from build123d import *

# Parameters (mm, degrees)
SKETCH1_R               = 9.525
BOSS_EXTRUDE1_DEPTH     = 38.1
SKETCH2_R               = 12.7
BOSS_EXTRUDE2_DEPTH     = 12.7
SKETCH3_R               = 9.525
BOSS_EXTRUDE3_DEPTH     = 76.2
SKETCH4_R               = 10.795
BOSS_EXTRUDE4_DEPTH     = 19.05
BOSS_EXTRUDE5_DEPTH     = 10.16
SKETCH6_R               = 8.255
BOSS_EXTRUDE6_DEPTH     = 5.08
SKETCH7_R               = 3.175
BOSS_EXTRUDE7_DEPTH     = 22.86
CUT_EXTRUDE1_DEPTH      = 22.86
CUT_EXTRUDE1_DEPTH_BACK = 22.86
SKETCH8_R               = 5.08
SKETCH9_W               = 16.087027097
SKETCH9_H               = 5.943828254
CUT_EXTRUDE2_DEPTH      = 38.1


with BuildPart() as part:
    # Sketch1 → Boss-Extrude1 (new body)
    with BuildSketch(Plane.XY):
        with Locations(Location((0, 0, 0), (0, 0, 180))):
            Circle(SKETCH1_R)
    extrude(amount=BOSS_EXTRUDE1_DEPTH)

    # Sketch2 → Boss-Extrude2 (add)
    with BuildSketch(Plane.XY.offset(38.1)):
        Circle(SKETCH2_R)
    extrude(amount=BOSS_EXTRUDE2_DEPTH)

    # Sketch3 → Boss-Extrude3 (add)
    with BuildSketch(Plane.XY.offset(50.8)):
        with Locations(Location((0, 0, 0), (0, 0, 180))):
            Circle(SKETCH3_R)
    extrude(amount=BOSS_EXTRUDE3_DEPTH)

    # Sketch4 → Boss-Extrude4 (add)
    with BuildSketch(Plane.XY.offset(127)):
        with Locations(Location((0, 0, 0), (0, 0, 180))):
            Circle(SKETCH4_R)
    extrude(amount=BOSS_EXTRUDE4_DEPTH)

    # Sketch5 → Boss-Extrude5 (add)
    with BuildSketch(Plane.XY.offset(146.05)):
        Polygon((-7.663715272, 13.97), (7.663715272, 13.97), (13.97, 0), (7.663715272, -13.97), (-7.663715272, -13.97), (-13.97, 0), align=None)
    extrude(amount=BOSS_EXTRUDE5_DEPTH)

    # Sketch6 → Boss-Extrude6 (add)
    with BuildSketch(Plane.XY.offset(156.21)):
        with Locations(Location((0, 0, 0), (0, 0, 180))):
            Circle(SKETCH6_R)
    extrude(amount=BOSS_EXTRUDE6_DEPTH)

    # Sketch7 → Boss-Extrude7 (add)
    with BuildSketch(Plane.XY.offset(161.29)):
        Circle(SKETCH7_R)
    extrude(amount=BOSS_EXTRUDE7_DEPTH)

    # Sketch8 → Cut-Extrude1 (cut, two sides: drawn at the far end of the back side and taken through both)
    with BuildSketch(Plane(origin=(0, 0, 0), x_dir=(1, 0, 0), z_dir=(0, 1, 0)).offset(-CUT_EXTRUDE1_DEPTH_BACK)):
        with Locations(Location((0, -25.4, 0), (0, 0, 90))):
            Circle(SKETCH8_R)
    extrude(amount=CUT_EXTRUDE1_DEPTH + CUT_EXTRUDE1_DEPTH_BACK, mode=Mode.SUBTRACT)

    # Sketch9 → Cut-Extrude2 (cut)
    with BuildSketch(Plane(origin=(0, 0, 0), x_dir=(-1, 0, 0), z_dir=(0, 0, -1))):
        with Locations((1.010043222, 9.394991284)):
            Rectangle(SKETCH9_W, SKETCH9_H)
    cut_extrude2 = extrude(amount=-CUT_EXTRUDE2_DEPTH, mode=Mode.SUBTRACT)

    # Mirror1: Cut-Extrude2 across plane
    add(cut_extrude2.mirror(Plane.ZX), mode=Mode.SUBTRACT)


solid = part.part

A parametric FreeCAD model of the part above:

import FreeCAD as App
import Part
import Sketcher

V = App.Vector
Q = App.Units.Quantity

doc = App.newDocument("Part")
body = doc.addObject("PartDesign::Body", "Body")

# Sketch on XY plane
sketch1 = doc.addObject("Sketcher::SketchObject", "Sketch")
body.addObject(sketch1)
sketch1.AttachmentSupport = (doc.XY_Plane, [""])
sketch1.MapMode = "FlatFace"
sketch1.addGeometry(Part.Circle(V(0, 0, 0), V(0, 0, 1), 10), False)
sketch1.addConstraint([
    Sketcher.Constraint("Coincident", 0, 3, -1, 1),
    Sketcher.Constraint("Diameter", 0, Q("0.75 in")),
])
pad1 = doc.addObject("PartDesign::Pad", "Pad")
body.addObject(pad1)
pad1.Profile = sketch1
pad1.Length = Q("1.5 in")

# Sketch on XY plane
sketch2 = doc.addObject("Sketcher::SketchObject", "Sketch001")
body.addObject(sketch2)
sketch2.AttachmentSupport = (doc.XY_Plane, [""])
sketch2.MapMode = "FlatFace"
sketch2.AttachmentOffset = App.Placement(V(0, 0, 1.5 * 25.4), App.Rotation())
sketch2.addGeometry(Part.Circle(V(0, 0, 0), V(0, 0, 1), 13), False)
sketch2.addConstraint([
    Sketcher.Constraint("Coincident", 0, 3, -1, 1),
    Sketcher.Constraint("Diameter", 0, Q("1 in")),
])
pad2 = doc.addObject("PartDesign::Pad", "Pad001")
body.addObject(pad2)
pad2.Profile = sketch2
pad2.Length = Q("0.5 in")

# Sketch on XY plane
sketch3 = doc.addObject("Sketcher::SketchObject", "Sketch002")
body.addObject(sketch3)
sketch3.AttachmentSupport = (doc.XY_Plane, [""])
sketch3.MapMode = "FlatFace"
sketch3.AttachmentOffset = App.Placement(V(0, 0, 2 * 25.4), App.Rotation())
sketch3.addGeometry(Part.Circle(V(0, 0, 0), V(0, 0, 1), 10), False)
sketch3.addConstraint([
    Sketcher.Constraint("Coincident", 0, 3, -1, 1),
    Sketcher.Constraint("Diameter", 0, Q("0.75 in")),
])
pad3 = doc.addObject("PartDesign::Pad", "Pad002")
body.addObject(pad3)
pad3.Profile = sketch3
pad3.Length = Q("3 in")

# Sketch on XY plane
sketch4 = doc.addObject("Sketcher::SketchObject", "Sketch003")
body.addObject(sketch4)
sketch4.AttachmentSupport = (doc.XY_Plane, [""])
sketch4.MapMode = "FlatFace"
sketch4.AttachmentOffset = App.Placement(V(0, 0, 5 * 25.4), App.Rotation())
sketch4.addGeometry(Part.Circle(V(0, 0, 0), V(0, 0, 1), 11), False)
sketch4.addConstraint([
    Sketcher.Constraint("Coincident", 0, 3, -1, 1),
    Sketcher.Constraint("Diameter", 0, Q("0.85 in")),
])
pad4 = doc.addObject("PartDesign::Pad", "Pad003")
body.addObject(pad4)
pad4.Profile = sketch4
pad4.Length = Q("0.75 in")

# Sketch on XY plane
sketch5 = doc.addObject("Sketcher::SketchObject", "Sketch004")
body.addObject(sketch5)
sketch5.AttachmentSupport = (doc.XY_Plane, [""])
sketch5.MapMode = "FlatFace"
sketch5.AttachmentOffset = App.Placement(V(0, 0, 5.75 * 25.4), App.Rotation())
sketch5.addGeometry([
    Part.LineSegment(V(8, 14, 0), V(-8, 14, 0)),  # 0
    Part.LineSegment(V(-8, 14, 0), V(-14, 0, 0)),  # 1
    Part.LineSegment(V(-14, 0, 0), V(-8, -14, 0)),  # 2
    Part.LineSegment(V(-8, -14, 0), V(8, -14, 0)),  # 3
    Part.LineSegment(V(8, -14, 0), V(14, 0, 0)),  # 4
    Part.LineSegment(V(14, 0, 0), V(8, 14, 0)),  # 5
], False)
sketch5.addConstraint([
    Sketcher.Constraint("Coincident", 0, 2, 1, 1),
    Sketcher.Constraint("Coincident", 1, 2, 2, 1),
    Sketcher.Constraint("Coincident", 2, 2, 3, 1),
    Sketcher.Constraint("Coincident", 3, 2, 4, 1),
    Sketcher.Constraint("Coincident", 4, 2, 5, 1),
    Sketcher.Constraint("Coincident", 5, 2, 0, 1),
    Sketcher.Constraint("Horizontal", 0),
    Sketcher.Constraint("Horizontal", 3),
    Sketcher.Constraint("Symmetric", 0, 2, 3, 2, -1, 1),
    Sketcher.Constraint("Symmetric", 1, 2, 4, 2, -1, 1),
    Sketcher.Constraint("PointOnObject", 1, 2, -1),
    Sketcher.Constraint("Parallel", 2, 5),
    Sketcher.Constraint("Vertical", 0, 2, 2, 2),
    Sketcher.Constraint("DistanceY", 2, 2, 0, 2, Q("1.1 in")),
    Sketcher.Constraint("DistanceX", 1, 2, 4, 2, Q("1.1 in")),
    Sketcher.Constraint("DistanceX", 0, 2, 0, 1, Q("15.327431 mm")),
])
pad5 = doc.addObject("PartDesign::Pad", "Pad004")
body.addObject(pad5)
pad5.Profile = sketch5
pad5.Length = Q("0.4 in")

# Sketch on XY plane
sketch6 = doc.addObject("Sketcher::SketchObject", "Sketch005")
body.addObject(sketch6)
sketch6.AttachmentSupport = (doc.XY_Plane, [""])
sketch6.MapMode = "FlatFace"
sketch6.AttachmentOffset = App.Placement(V(0, 0, 6.15 * 25.4), App.Rotation())
sketch6.addGeometry(Part.Circle(V(0, 0, 0), V(0, 0, 1), 8), False)
sketch6.addConstraint([
    Sketcher.Constraint("Coincident", 0, 3, -1, 1),
    Sketcher.Constraint("Diameter", 0, Q("0.65 in")),
])
pad6 = doc.addObject("PartDesign::Pad", "Pad005")
body.addObject(pad6)
pad6.Profile = sketch6
pad6.Length = Q("0.2 in")

# Sketch on XY plane
sketch7 = doc.addObject("Sketcher::SketchObject", "Sketch006")
body.addObject(sketch7)
sketch7.AttachmentSupport = (doc.XY_Plane, [""])
sketch7.MapMode = "FlatFace"
sketch7.AttachmentOffset = App.Placement(V(0, 0, 6.35 * 25.4), App.Rotation())
sketch7.addGeometry(Part.Circle(V(0, 0, 0), V(0, 0, 1), 3.2), False)
sketch7.addConstraint([
    Sketcher.Constraint("Coincident", 0, 3, -1, 1),
    Sketcher.Constraint("Diameter", 0, Q("0.25 in")),
])
pad7 = doc.addObject("PartDesign::Pad", "Pad006")
body.addObject(pad7)
pad7.Profile = sketch7
pad7.Length = Q("0.9 in")

# Sketch on XZ plane
sketch8 = doc.addObject("Sketcher::SketchObject", "Sketch007")
body.addObject(sketch8)
sketch8.AttachmentSupport = (doc.XZ_Plane, [""])
sketch8.MapMode = "FlatFace"
sketch8.addGeometry(Part.Circle(V(0, 25, 0), V(0, 0, 1), 5), False)
sketch8.addConstraint([
    Sketcher.Constraint("PointOnObject", 0, 3, -2),
    Sketcher.Constraint("Diameter", 0, Q("0.4 in")),
    Sketcher.Constraint("DistanceY", -1, 1, 0, 3, Q("1 in")),
])
pocket1 = doc.addObject("PartDesign::Pocket", "Pocket")
body.addObject(pocket1)
pocket1.Profile = sketch8
pocket1.Type = "ThroughAll"
pocket1.Midplane = True

# Sketch on XY plane
sketch9 = doc.addObject("Sketcher::SketchObject", "Sketch008")
body.addObject(sketch9)
sketch9.AttachmentSupport = (doc.XY_Plane, [""])
sketch9.MapMode = "FlatFace"
sketch9.addGeometry([
    Part.LineSegment(V(7, 12, 0), V(7, 6, 0)),
    Part.LineSegment(V(7, 6, 0), V(-9, 6, 0)),
    Part.LineSegment(V(-9, 6, 0), V(-9, 12, 0)),
    Part.LineSegment(V(-9, 12, 0), V(7, 12, 0)),
], False)
sketch9.addConstraint([
    Sketcher.Constraint("Coincident", 0, 2, 1, 1),
    Sketcher.Constraint("Coincident", 1, 2, 2, 1),
    Sketcher.Constraint("Coincident", 2, 2, 3, 1),
    Sketcher.Constraint("Coincident", 3, 2, 0, 1),
    Sketcher.Constraint("Vertical", 0),
    Sketcher.Constraint("Horizontal", 1),
    Sketcher.Constraint("Vertical", 2),
    Sketcher.Constraint("Horizontal", 3),
    Sketcher.Constraint("DistanceY", 0, 2, 0, 1, Q("5.943828 mm")),
    Sketcher.Constraint("DistanceX", 1, 2, 1, 1, Q("16.087027 mm")),
    Sketcher.Constraint("DistanceX", -1, 1, 0, 2, Q("7.03347 mm")),
    Sketcher.Constraint("DistanceY", -1, 1, 0, 2, Q("6.423077 mm")),
])
pocket2 = doc.addObject("PartDesign::Pocket", "Pocket001")
body.addObject(pocket2)
pocket2.Profile = sketch9
pocket2.Length = Q("1.5 in")
pocket2.Reversed = True
doc.recompute()

mirrored = doc.addObject("PartDesign::Mirrored", "Mirrored")
body.addObject(mirrored)
mirrored.Originals = [pocket2]
mirrored.MirrorPlane = (doc.XZ_Plane, [""])
body.Tip = mirrored

doc.recompute()
